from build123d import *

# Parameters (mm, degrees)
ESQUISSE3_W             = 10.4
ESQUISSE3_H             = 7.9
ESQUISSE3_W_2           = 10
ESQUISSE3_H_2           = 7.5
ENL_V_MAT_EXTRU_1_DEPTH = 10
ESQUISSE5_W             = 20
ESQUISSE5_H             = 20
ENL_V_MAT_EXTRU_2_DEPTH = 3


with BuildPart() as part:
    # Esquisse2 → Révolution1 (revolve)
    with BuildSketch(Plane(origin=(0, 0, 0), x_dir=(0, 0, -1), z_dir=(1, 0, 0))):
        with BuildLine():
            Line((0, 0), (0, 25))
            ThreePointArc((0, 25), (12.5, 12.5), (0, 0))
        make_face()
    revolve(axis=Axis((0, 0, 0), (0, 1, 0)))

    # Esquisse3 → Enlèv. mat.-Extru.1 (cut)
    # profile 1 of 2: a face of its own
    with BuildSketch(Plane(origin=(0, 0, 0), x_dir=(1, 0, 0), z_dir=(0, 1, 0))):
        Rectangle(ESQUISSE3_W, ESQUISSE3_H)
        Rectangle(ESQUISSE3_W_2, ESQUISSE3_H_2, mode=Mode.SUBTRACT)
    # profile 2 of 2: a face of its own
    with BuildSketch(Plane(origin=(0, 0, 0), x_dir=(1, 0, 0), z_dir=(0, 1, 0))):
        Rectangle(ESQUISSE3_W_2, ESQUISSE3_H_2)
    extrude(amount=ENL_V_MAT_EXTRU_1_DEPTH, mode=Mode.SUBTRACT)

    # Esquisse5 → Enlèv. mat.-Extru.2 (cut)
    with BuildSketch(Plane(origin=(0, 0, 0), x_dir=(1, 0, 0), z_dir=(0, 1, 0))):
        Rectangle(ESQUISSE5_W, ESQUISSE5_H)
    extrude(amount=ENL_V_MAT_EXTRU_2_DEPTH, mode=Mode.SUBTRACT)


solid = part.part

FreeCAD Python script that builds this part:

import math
import FreeCAD as App
import Part
import Sketcher

V = App.Vector


def add_polygon(sketch, points):
    """Adds a closed chain of lines whose ends are joined by coincident constraints."""
    first, n = sketch.GeometryCount, len(points)
    for a, b in zip(points, points[1:] + points[:1]):
        sketch.addGeometry(Part.LineSegment(App.Vector(*a, 0), App.Vector(*b, 0)), False)
    for i in range(n):
        sketch.addConstraint(Sketcher.Constraint("Coincident", first + i, 2, first + (i + 1) % n, 1))

doc = App.newDocument("Part")
body = doc.addObject("PartDesign::Body", "Body")

# Sketch on YZ plane
sketch1 = body.newObject("Sketcher::SketchObject", "Sketch")
sketch1.AttachmentSupport = (doc.getObject("YZ_Plane"), [""])
sketch1.MapMode = "FlatFace"
sketch1.addGeometry([
    Part.LineSegment(V(25, 0, 0), V(0, 0, 0)),
    Part.ArcOfCircle(Part.Circle(V(12, 0, 0), V(0, 0, 1), 12), math.radians(180), math.radians(360)),
], False)
sketch1.addConstraint([
    Sketcher.Constraint("Coincident", 0, 1, 1, 2),
    Sketcher.Constraint("Coincident", 1, 1, 0, 2),
    Sketcher.Constraint("Horizontal", 0),
    Sketcher.Constraint("Coincident", 1, 1, -1, 1),
    Sketcher.Constraint("PointOnObject", 1, 3, -1),
    Sketcher.Constraint("Radius", 1, 12.5),
])
revolution = body.newObject("PartDesign::Revolution", "Revolution")
revolution.Profile = sketch1
revolution.ReferenceAxis = (sketch1, ["H_Axis"])
revolution.Angle = 360

# Sketch on XZ plane
sketch2 = body.newObject("Sketcher::SketchObject", "Sketch001")
sketch2.AttachmentSupport = (doc.getObject("XZ_Plane"), [""])
sketch2.MapMode = "FlatFace"
add_polygon(sketch2, [(-5, -4), (-5, 4), (5, 4), (5, -4)])  # lines 0-3
sketch2.addConstraint([
    Sketcher.Constraint("Vertical", 0),
    Sketcher.Constraint("Horizontal", 1),
    Sketcher.Constraint("Vertical", 2),
    Sketcher.Constraint("Horizontal", 3),
    Sketcher.Constraint("Symmetric", 0, 2, 2, 2, -1, 1),
    Sketcher.Constraint("DistanceX", 1, 1, 1, 2, 10.4),
    Sketcher.Constraint("DistanceY", 0, 1, 0, 2, 7.9),
])
pocket1 = body.newObject("PartDesign::Pocket", "Pocket")
pocket1.Profile = sketch2
pocket1.Length = 10

# Sketch on XZ plane
sketch3 = body.newObject("Sketcher::SketchObject", "Sketch002")
sketch3.AttachmentSupport = (doc.getObject("XZ_Plane"), [""])
sketch3.MapMode = "FlatFace"
add_polygon(sketch3, [(-10, -10), (-10, 10), (10, 10), (10, -10)])  # lines 0-3
sketch3.addConstraint([
    Sketcher.Constraint("Vertical", 0),
    Sketcher.Constraint("Horizontal", 1),
    Sketcher.Constraint("Vertical", 2),
    Sketcher.Constraint("Horizontal", 3),
    Sketcher.Constraint("Symmetric", 0, 2, 2, 2, -1, 1),
    Sketcher.Constraint("Equal", 3, 0),
    Sketcher.Constraint("DistanceX", 1, 1, 1, 2, 20.0),
])
pocket2 = body.newObject("PartDesign::Pocket", "Pocket001")
pocket2.Profile = sketch3
pocket2.Length = 3

doc.recompute()
